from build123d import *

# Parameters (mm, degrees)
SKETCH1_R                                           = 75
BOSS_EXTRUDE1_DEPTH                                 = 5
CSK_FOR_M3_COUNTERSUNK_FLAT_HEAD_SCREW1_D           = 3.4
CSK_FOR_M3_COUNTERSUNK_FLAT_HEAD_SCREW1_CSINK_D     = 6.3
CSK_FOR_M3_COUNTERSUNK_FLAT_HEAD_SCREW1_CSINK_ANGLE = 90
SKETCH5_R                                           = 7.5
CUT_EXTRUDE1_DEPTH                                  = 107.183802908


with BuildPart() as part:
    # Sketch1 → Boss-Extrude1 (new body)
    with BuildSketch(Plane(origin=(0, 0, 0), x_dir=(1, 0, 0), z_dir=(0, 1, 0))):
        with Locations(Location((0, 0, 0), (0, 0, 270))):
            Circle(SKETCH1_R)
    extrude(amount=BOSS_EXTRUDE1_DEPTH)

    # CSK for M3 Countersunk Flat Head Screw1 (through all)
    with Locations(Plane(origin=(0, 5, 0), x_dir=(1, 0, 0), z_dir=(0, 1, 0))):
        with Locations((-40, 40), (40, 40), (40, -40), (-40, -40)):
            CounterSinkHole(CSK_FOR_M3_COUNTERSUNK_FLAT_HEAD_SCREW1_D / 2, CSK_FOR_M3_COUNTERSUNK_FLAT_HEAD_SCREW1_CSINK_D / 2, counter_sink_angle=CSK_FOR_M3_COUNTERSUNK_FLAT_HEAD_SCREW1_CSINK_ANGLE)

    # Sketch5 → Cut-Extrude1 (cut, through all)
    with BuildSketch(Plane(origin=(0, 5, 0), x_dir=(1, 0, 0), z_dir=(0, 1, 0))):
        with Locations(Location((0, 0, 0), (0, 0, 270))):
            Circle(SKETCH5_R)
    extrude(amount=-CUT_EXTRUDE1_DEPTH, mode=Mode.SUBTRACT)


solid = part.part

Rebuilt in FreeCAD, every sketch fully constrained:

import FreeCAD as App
import Part
import Sketcher

V = App.Vector
Q = App.Units.Quantity

doc = App.newDocument("Part")
body = doc.addObject("PartDesign::Body", "Body")

# Sketch on XZ plane
sketch1 = doc.addObject("Sketcher::SketchObject", "Sketch")
body.addObject(sketch1)
sketch1.AttachmentSupport = (doc.XZ_Plane, [""])
sketch1.MapMode = "FlatFace"
sketch1.addGeometry(Part.Circle(V(0, 0, 0), V(0, 0, 1), 75), False)
sketch1.addConstraint([
    Sketcher.Constraint("Coincident", 0, 3, -1, 1),
    Sketcher.Constraint("Diameter", 0, Q("150 mm")),
])
pad1 = doc.addObject("PartDesign::Pad", "Pad")
body.addObject(pad1)
pad1.Profile = sketch1
pad1.Length = 5
pad1.Reversed = True

# Sketch on XZ plane
sketch2 = doc.addObject("Sketcher::SketchObject", "Sketch001")
body.addObject(sketch2)
sketch2.AttachmentSupport = (doc.XZ_Plane, [""])
sketch2.MapMode = "FlatFace"
sketch2.AttachmentOffset = App.Placement(V(0, 0, -5), App.Rotation())
sketch2.addGeometry([
    Part.Circle(V(-40, -40, 0), V(0, 0, 1), 1.7),
    Part.Circle(V(40, -40, 0), V(0, 0, 1), 1.7),
    Part.Circle(V(40, 40, 0), V(0, 0, 1), 1.7),
    Part.Circle(V(-40, 40, 0), V(0, 0, 1), 1.7),
], False)
sketch2.addConstraint([
    Sketcher.Constraint("Equal", 0, 1),
    Sketcher.Constraint("Equal", 1, 2),
    Sketcher.Constraint("Equal", 2, 3),
    Sketcher.Constraint("Symmetric", 0, 3, 2, 3, -1, 1),
    Sketcher.Constraint("Symmetric", 1, 3, 3, 3, -1, 1),
    Sketcher.Constraint("Symmetric", 0, 3, 1, 3, -2),
    Sketcher.Constraint("Diameter", 0, Q("3.4 mm")),
    Sketcher.Constraint("DistanceX", 0, 3, -1, 1, Q("40 mm")),
    Sketcher.Constraint("DistanceY", 0, 3, -1, 1, Q("40 mm")),
])
doc.recompute()
hole = doc.addObject("PartDesign::Hole", "Hole")
body.addObject(hole)
hole.Profile = sketch2
hole.ThreadType = "None"
hole.Diameter = 3.4
hole.DepthType = "ThroughAll"
hole.HoleCutType = "Countersink"
hole.HoleCutDiameter = 6.3
hole.HoleCutCountersinkAngle = 90
hole.Reversed = True

# Sketch on XZ plane
sketch3 = doc.addObject("Sketcher::SketchObject", "Sketch002")
body.addObject(sketch3)
sketch3.AttachmentSupport = (doc.XZ_Plane, [""])
sketch3.MapMode = "FlatFace"
sketch3.AttachmentOffset = App.Placement(V(0, 0, -5), App.Rotation())
sketch3.addGeometry(Part.Circle(V(0, 0, 0), V(0, 0, 1), 7.5), False)
sketch3.addConstraint([
    Sketcher.Constraint("Coincident", 0, 3, -1, 1),
    Sketcher.Constraint("Diameter", 0, Q("15 mm")),
])
pocket1 = doc.addObject("PartDesign::Pocket", "Pocket")
body.addObject(pocket1)
pocket1.Profile = sketch3
pocket1.Type = "ThroughAll"
pocket1.Reversed = True

doc.recompute()
